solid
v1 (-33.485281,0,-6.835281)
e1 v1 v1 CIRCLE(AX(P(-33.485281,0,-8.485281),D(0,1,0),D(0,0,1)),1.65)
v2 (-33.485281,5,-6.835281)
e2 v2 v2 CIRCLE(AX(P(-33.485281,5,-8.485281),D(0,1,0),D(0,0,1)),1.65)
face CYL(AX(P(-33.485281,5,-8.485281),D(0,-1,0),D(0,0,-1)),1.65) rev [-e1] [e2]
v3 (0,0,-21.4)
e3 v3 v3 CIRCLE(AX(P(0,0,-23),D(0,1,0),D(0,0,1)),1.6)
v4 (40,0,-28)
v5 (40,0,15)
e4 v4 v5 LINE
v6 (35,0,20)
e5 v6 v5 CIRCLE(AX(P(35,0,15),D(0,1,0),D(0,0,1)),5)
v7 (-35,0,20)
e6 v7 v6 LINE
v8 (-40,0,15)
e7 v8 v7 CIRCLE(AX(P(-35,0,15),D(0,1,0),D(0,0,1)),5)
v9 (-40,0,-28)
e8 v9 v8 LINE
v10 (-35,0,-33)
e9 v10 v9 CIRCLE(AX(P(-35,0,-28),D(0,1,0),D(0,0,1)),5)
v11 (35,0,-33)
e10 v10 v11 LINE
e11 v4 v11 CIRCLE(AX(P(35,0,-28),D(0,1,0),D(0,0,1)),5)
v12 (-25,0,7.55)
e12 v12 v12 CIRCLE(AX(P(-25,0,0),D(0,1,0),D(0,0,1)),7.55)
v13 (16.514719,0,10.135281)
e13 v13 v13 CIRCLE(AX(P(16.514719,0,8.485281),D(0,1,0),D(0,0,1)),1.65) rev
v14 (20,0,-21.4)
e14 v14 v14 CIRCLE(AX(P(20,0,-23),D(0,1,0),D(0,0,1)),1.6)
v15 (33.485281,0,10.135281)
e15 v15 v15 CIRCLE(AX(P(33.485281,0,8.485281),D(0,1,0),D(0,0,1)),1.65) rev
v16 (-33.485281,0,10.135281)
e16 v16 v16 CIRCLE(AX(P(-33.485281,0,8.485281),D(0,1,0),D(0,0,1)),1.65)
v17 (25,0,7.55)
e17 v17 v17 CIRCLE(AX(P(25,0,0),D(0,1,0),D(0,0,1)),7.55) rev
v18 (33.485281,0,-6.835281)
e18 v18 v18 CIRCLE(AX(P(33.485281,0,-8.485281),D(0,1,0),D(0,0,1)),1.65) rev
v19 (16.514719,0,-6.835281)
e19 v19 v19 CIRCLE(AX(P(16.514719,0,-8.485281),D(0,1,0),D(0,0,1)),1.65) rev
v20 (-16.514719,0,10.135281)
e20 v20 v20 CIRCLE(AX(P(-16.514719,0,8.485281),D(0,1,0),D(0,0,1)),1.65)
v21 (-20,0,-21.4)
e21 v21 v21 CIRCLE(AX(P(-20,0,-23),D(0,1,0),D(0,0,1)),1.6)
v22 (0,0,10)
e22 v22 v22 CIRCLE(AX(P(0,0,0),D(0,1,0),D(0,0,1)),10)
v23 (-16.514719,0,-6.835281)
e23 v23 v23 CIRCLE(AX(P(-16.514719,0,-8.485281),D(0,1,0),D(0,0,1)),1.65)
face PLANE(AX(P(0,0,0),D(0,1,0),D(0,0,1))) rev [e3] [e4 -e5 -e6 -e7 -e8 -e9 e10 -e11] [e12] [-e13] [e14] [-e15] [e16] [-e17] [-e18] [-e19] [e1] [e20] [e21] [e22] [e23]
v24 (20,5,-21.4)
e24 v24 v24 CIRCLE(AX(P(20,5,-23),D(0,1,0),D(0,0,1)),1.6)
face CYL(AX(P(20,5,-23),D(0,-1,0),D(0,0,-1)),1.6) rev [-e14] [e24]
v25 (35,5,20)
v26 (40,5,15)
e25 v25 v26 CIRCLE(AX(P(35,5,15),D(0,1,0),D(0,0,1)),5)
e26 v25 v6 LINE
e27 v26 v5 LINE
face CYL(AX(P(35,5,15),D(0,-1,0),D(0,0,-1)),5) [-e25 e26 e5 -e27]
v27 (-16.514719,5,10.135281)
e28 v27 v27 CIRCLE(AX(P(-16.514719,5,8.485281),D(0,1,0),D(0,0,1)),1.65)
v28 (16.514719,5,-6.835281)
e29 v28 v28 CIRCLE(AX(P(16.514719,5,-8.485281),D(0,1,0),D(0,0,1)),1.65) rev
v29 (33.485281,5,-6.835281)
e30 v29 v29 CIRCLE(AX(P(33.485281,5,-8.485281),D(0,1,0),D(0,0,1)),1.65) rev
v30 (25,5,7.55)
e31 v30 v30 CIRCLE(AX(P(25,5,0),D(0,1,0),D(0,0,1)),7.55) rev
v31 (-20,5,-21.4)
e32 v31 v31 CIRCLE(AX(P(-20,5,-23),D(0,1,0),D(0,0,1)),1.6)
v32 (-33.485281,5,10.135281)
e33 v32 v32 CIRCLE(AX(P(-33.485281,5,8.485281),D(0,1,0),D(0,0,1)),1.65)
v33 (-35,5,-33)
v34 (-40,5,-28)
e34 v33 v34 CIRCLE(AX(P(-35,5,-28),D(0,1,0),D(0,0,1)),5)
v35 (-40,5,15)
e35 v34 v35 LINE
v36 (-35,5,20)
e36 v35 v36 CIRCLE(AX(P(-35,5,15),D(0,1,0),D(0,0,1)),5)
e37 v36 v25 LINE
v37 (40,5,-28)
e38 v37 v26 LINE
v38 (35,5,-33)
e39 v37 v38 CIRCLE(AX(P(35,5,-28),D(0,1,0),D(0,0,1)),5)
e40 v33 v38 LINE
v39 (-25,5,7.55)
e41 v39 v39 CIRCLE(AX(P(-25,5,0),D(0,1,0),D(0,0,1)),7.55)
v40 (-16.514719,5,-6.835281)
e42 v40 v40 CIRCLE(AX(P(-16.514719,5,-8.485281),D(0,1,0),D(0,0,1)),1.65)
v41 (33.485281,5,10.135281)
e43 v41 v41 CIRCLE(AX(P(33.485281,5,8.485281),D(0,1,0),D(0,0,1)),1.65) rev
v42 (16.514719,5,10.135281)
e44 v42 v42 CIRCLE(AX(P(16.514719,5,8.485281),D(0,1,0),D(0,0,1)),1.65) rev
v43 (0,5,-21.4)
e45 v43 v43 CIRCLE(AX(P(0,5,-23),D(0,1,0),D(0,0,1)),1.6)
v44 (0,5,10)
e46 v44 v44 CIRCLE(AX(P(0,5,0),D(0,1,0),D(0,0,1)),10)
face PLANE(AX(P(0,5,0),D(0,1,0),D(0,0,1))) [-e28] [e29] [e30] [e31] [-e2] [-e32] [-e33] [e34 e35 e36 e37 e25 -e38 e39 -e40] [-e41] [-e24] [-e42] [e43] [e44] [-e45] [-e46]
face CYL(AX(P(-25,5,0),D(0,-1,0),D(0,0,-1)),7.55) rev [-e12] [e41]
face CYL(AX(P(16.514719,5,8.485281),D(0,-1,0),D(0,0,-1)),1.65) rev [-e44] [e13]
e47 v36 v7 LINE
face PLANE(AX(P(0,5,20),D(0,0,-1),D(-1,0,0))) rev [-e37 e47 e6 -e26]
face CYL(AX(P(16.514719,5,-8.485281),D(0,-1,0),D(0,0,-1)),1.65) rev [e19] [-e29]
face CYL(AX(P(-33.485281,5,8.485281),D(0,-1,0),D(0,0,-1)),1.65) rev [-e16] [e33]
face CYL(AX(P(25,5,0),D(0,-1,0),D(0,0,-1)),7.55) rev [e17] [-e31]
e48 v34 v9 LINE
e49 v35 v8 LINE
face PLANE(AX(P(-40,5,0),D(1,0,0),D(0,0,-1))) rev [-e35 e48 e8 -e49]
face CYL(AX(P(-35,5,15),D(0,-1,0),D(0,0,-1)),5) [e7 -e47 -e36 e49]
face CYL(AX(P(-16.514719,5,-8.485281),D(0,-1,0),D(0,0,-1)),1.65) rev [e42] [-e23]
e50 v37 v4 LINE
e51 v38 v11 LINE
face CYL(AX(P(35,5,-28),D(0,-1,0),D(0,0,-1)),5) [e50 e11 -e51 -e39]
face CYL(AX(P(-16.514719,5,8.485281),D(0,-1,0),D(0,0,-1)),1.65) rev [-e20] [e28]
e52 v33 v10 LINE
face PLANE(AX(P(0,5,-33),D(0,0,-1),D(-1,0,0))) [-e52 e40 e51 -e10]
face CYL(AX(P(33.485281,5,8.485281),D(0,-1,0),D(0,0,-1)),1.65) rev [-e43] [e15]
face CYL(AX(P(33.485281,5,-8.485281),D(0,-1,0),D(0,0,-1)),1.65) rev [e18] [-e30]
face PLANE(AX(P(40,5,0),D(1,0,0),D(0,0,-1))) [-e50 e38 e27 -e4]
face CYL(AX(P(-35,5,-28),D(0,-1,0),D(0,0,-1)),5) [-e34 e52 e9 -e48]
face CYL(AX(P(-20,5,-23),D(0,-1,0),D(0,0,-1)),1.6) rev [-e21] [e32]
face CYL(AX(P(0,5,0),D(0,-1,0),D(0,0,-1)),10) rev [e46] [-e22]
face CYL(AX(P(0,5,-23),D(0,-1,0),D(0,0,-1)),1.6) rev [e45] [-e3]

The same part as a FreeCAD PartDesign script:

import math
import FreeCAD as App
import Part
import Sketcher
Q = App.Units.Quantity

doc = App.newDocument("Part")
body = doc.addObject("PartDesign::Body", "Body")

# Sketch on XZ plane
sketch1 = body.newObject("Sketcher::SketchObject", "Sketch")
sketch1.AttachmentSupport = (doc.getObject("XZ_Plane"), [""])
sketch1.MapMode = "FlatFace"
sketch1.addGeometry([
    Part.LineSegment(App.Vector(35, -33, 0), App.Vector(-35, -33, 0)),  # 0
    Part.ArcOfCircle(Part.Circle(App.Vector(-35, -28, 0), App.Vector(0, 0, 1), 5), math.radians(180), math.radians(270)),  # 1
    Part.LineSegment(App.Vector(-40, -28, 0), App.Vector(-40, 15, 0)),  # 2
    Part.ArcOfCircle(Part.Circle(App.Vector(-35, 15, 0), App.Vector(0, 0, 1), 5), math.radians(90), math.radians(180)),  # 3
    Part.LineSegment(App.Vector(-35, 20, 0), App.Vector(35, 20, 0)),  # 4
    Part.ArcOfCircle(Part.Circle(App.Vector(35, 15, 0), App.Vector(0, 0, 1), 5), math.radians(0), math.radians(90)),  # 5
    Part.LineSegment(App.Vector(40, 15, 0), App.Vector(40, -28, 0)),  # 6
    Part.ArcOfCircle(Part.Circle(App.Vector(35, -28, 0), App.Vector(0, 0, 1), 5), math.radians(-90), math.radians(0)),  # 7
    Part.Circle(App.Vector(33.5, 8.5, 0), App.Vector(0, 0, 1), 1.6),  # 8
    Part.Circle(App.Vector(16.5, 8.5, 0), App.Vector(0, 0, 1), 1.6),  # 9
    Part.Circle(App.Vector(25, 0, 0), App.Vector(0, 0, 1), 7.5),  # 10
    Part.Circle(App.Vector(-16.5, 8.5, 0), App.Vector(0, 0, 1), 1.6),  # 11
    Part.Circle(App.Vector(-33.5, 8.5, 0), App.Vector(0, 0, 1), 1.6),  # 12
    Part.Circle(App.Vector(0, 0, 0), App.Vector(0, 0, 1), 10),  # 13
    Part.Circle(App.Vector(-25, 0, 0), App.Vector(0, 0, 1), 7.5),  # 14
    Part.Circle(App.Vector(33.5, -8.5, 0), App.Vector(0, 0, 1), 1.6),  # 15
    Part.Circle(App.Vector(16.5, -8.5, 0), App.Vector(0, 0, 1), 1.6),  # 16
    Part.Circle(App.Vector(20, -23, 0), App.Vector(0, 0, 1), 1.6),  # 17
    Part.Circle(App.Vector(-16.5, -8.5, 0), App.Vector(0, 0, 1), 1.6),  # 18
    Part.Circle(App.Vector(-33.5, -8.5, 0), App.Vector(0, 0, 1), 1.6),  # 19
    Part.Circle(App.Vector(0, -23, 0), App.Vector(0, 0, 1), 1.6),  # 20
    Part.Circle(App.Vector(-20, -23, 0), App.Vector(0, 0, 1), 1.6),  # 21
], False)
sketch1.addConstraint([
    Sketcher.Constraint("Tangent", 0, 2, 1, 2),
    Sketcher.Constraint("Tangent", 1, 1, 2, 1),
    Sketcher.Constraint("Tangent", 2, 2, 3, 2),
    Sketcher.Constraint("Tangent", 3, 1, 4, 1),
    Sketcher.Constraint("Tangent", 4, 2, 5, 2),
    Sketcher.Constraint("Tangent", 5, 1, 6, 1),
    Sketcher.Constraint("Tangent", 6, 2, 7, 2),
    Sketcher.Constraint("Tangent", 7, 1, 0, 1),
    Sketcher.Constraint("Horizontal", 0),
    Sketcher.Constraint("Vertical", 2),
    Sketcher.Constraint("Horizontal", 4),
    Sketcher.Constraint("Vertical", 6),
    Sketcher.Constraint("Coincident", 13, 3, -1, 1),
    Sketcher.Constraint("Equal", 1, 3),
    Sketcher.Constraint("Equal", 3, 5),
    Sketcher.Constraint("Equal", 5, 7),
    Sketcher.Constraint("Equal", 8, 9),
    Sketcher.Constraint("Equal", 9, 11),
    Sketcher.Constraint("Equal", 11, 12),
    Sketcher.Constraint("Equal", 10, 14),
    Sketcher.Constraint("Equal", 12, 15),
    Sketcher.Constraint("Equal", 15, 16),
    Sketcher.Constraint("Equal", 16, 18),
    Sketcher.Constraint("Equal", 18, 19),
    Sketcher.Constraint("Equal", 17, 20),
    Sketcher.Constraint("Equal", 20, 21),
    Sketcher.Constraint("Symmetric", 10, 3, 14, 3, -1, 1),
    Sketcher.Constraint("Symmetric", 12, 3, 15, 3, -1, 1),
    Sketcher.Constraint("Symmetric", 11, 3, 16, 3, -1, 1),
    Sketcher.Constraint("Symmetric", 9, 3, 18, 3, -1, 1),
    Sketcher.Constraint("Symmetric", 8, 3, 19, 3, -1, 1),
    Sketcher.Constraint("Symmetric", 9, 3, 11, 3, -2),
    Sketcher.Constraint("Symmetric", 8, 3, 12, 3, -2),
    Sketcher.Constraint("Symmetric", 17, 3, 21, 3, -2),
    Sketcher.Constraint("PointOnObject", 10, 3, -1),
    Sketcher.Constraint("PointOnObject", 20, 3, -2),
    Sketcher.Constraint("Horizontal", 8, 3, 9, 3),
    Sketcher.Constraint("Horizontal", 17, 3, 20, 3),
    Sketcher.Constraint("Diameter", 13, Q("20 mm")),
    Sketcher.Constraint("Radius", 1, Q("5 mm")),
    Sketcher.Constraint("Diameter", 8, Q("3.3 mm")),
    Sketcher.Constraint("Diameter", 10, Q("15.1 mm")),
    Sketcher.Constraint("Diameter", 17, Q("3.2 mm")),
    Sketcher.Constraint("DistanceX", 0, 2, 0, 1, Q("70 mm")),
    Sketcher.Constraint("DistanceY", 2, 1, 2, 2, Q("43 mm")),
    Sketcher.Constraint("DistanceX", 1, 3, -1, 1, Q("35 mm")),
    Sketcher.Constraint("DistanceY", 1, 3, -1, 1, Q("28 mm")),
    Sketcher.Constraint("DistanceX", -1, 1, 10, 3, Q("25 mm")),
    Sketcher.Constraint("DistanceX", -1, 1, 17, 3, Q("20 mm")),
    Sketcher.Constraint("DistanceY", 17, 3, -1, 1, Q("23 mm")),
    Sketcher.Constraint("DistanceX", 11, 3, 8, 3, Q("50 mm")),
    Sketcher.Constraint("DistanceX", -1, 1, 8, 3, Q("33.485281 mm")),
    Sketcher.Constraint("DistanceY", -1, 1, 8, 3, Q("8.485281 mm")),
])
pad1 = body.newObject("PartDesign::Pad", "Pad")
pad1.Profile = sketch1
pad1.Length = 5
pad1.Reversed = True

doc.recompute()
